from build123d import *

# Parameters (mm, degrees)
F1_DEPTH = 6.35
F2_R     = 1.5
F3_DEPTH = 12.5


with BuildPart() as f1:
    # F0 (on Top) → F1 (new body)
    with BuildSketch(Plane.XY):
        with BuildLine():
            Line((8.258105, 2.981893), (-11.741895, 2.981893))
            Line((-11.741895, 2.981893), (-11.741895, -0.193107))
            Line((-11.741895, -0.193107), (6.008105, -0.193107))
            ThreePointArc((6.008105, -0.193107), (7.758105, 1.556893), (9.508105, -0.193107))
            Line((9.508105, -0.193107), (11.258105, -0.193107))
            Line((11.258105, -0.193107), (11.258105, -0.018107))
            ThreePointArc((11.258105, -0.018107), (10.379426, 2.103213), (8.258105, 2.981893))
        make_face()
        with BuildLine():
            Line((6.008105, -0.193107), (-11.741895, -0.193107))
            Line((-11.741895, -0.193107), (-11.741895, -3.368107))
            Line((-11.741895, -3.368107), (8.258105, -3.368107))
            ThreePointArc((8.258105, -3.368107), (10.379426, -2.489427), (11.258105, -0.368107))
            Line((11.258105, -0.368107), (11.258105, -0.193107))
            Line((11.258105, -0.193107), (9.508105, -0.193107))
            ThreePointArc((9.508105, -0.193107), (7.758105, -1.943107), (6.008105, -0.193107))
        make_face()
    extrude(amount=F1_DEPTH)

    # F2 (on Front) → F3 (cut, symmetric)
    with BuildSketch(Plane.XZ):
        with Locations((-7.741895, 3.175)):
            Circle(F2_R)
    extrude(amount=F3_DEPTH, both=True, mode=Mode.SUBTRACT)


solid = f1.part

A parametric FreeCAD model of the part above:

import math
import FreeCAD as App
import Part
import Sketcher
from FreeCAD import Vector
Q = App.Units.Quantity

doc = App.newDocument("Part")
body = doc.addObject("PartDesign::Body", "Body")

sketch1 = body.newObject("Sketcher::SketchObject", "Sketch")
sketch1.AttachmentSupport = (doc.getObject("XY_Plane"), [""])
sketch1.MapMode = "FlatFace"
sketch1.addGeometry([
    Part.LineSegment(Vector(8.26, 2.98, 0), Vector(-11.74, 2.98, 0)),
    Part.LineSegment(Vector(-11.74, 2.98, 0), Vector(-11.74, -3.37, 0)),
    Part.LineSegment(Vector(-11.74, -3.37, 0), Vector(8.26, -3.37, 0)),
    Part.ArcOfCircle(Part.Circle(Vector(8.26, -0.37, 0), Vector(0, 0, 1), 3), math.radians(-90), math.radians(0)),
    Part.LineSegment(Vector(11.26, -0.37, 0), Vector(11.26, -0.02, 0)),
    Part.ArcOfCircle(Part.Circle(Vector(8.26, -0.02, 0), Vector(0, 0, 1), 3), math.radians(0), math.radians(90)),
    Part.Circle(Vector(7.76, -0.19, 0), Vector(0, 0, 1), 1.75),
], False)
sketch1.addConstraint([
    Sketcher.Constraint("Coincident", 0, 2, 1, 1),
    Sketcher.Constraint("Coincident", 1, 2, 2, 1),
    Sketcher.Constraint("Tangent", 2, 2, 3, 1),
    Sketcher.Constraint("Tangent", 3, 2, 4, 1),
    Sketcher.Constraint("Tangent", 4, 2, 5, 1),
    Sketcher.Constraint("Tangent", 5, 2, 0, 1),
    Sketcher.Constraint("Horizontal", 0),
    Sketcher.Constraint("Vertical", 1),
    Sketcher.Constraint("Horizontal", 2),
    Sketcher.Constraint("Vertical", 4),
    Sketcher.Constraint("Equal", 3, 5),
    Sketcher.Constraint("Radius", 3, Q("2.999999 mm")),
    Sketcher.Constraint("Diameter", 6, Q("3.5 mm")),
    Sketcher.Constraint("DistanceX", 0, 2, 0, 1, Q("20 mm")),
    Sketcher.Constraint("DistanceY", 1, 2, 1, 1, Q("6.35 mm")),
    Sketcher.Constraint("DistanceX", 6, 3, 3, 3, Q("0.500001 mm")),
    Sketcher.Constraint("DistanceY", 3, 3, 6, 3, Q("0.175001 mm")),
    Sketcher.Constraint("DistanceX", -1, 1, 3, 3, Q("8.258106 mm")),
    Sketcher.Constraint("DistanceY", 3, 3, -1, 1, Q("0.368108 mm")),
])
pad1 = body.newObject("PartDesign::Pad", "Pad")
pad1.Profile = sketch1
pad1.Length = 6.35

sketch2 = body.newObject("Sketcher::SketchObject", "Sketch001")
sketch2.AttachmentSupport = (doc.getObject("XZ_Plane"), [""])
sketch2.MapMode = "FlatFace"
sketch2.addGeometry(Part.Circle(Vector(-7.7, 3.2, 0), Vector(0, 0, 1), 1.5), False)
sketch2.addConstraint([
    Sketcher.Constraint("Diameter", 0, Q("3 mm")),
    Sketcher.Constraint("DistanceY", -1, 1, 0, 3, Q("3.175 mm")),
    Sketcher.Constraint("DistanceX", 0, 3, -1, 1, Q("7.741895 mm")),
])
pocket1 = body.newObject("PartDesign::Pocket", "Pocket")
pocket1.Profile = sketch2
pocket1.Length = 25
pocket1.Midplane = True

doc.recompute()
